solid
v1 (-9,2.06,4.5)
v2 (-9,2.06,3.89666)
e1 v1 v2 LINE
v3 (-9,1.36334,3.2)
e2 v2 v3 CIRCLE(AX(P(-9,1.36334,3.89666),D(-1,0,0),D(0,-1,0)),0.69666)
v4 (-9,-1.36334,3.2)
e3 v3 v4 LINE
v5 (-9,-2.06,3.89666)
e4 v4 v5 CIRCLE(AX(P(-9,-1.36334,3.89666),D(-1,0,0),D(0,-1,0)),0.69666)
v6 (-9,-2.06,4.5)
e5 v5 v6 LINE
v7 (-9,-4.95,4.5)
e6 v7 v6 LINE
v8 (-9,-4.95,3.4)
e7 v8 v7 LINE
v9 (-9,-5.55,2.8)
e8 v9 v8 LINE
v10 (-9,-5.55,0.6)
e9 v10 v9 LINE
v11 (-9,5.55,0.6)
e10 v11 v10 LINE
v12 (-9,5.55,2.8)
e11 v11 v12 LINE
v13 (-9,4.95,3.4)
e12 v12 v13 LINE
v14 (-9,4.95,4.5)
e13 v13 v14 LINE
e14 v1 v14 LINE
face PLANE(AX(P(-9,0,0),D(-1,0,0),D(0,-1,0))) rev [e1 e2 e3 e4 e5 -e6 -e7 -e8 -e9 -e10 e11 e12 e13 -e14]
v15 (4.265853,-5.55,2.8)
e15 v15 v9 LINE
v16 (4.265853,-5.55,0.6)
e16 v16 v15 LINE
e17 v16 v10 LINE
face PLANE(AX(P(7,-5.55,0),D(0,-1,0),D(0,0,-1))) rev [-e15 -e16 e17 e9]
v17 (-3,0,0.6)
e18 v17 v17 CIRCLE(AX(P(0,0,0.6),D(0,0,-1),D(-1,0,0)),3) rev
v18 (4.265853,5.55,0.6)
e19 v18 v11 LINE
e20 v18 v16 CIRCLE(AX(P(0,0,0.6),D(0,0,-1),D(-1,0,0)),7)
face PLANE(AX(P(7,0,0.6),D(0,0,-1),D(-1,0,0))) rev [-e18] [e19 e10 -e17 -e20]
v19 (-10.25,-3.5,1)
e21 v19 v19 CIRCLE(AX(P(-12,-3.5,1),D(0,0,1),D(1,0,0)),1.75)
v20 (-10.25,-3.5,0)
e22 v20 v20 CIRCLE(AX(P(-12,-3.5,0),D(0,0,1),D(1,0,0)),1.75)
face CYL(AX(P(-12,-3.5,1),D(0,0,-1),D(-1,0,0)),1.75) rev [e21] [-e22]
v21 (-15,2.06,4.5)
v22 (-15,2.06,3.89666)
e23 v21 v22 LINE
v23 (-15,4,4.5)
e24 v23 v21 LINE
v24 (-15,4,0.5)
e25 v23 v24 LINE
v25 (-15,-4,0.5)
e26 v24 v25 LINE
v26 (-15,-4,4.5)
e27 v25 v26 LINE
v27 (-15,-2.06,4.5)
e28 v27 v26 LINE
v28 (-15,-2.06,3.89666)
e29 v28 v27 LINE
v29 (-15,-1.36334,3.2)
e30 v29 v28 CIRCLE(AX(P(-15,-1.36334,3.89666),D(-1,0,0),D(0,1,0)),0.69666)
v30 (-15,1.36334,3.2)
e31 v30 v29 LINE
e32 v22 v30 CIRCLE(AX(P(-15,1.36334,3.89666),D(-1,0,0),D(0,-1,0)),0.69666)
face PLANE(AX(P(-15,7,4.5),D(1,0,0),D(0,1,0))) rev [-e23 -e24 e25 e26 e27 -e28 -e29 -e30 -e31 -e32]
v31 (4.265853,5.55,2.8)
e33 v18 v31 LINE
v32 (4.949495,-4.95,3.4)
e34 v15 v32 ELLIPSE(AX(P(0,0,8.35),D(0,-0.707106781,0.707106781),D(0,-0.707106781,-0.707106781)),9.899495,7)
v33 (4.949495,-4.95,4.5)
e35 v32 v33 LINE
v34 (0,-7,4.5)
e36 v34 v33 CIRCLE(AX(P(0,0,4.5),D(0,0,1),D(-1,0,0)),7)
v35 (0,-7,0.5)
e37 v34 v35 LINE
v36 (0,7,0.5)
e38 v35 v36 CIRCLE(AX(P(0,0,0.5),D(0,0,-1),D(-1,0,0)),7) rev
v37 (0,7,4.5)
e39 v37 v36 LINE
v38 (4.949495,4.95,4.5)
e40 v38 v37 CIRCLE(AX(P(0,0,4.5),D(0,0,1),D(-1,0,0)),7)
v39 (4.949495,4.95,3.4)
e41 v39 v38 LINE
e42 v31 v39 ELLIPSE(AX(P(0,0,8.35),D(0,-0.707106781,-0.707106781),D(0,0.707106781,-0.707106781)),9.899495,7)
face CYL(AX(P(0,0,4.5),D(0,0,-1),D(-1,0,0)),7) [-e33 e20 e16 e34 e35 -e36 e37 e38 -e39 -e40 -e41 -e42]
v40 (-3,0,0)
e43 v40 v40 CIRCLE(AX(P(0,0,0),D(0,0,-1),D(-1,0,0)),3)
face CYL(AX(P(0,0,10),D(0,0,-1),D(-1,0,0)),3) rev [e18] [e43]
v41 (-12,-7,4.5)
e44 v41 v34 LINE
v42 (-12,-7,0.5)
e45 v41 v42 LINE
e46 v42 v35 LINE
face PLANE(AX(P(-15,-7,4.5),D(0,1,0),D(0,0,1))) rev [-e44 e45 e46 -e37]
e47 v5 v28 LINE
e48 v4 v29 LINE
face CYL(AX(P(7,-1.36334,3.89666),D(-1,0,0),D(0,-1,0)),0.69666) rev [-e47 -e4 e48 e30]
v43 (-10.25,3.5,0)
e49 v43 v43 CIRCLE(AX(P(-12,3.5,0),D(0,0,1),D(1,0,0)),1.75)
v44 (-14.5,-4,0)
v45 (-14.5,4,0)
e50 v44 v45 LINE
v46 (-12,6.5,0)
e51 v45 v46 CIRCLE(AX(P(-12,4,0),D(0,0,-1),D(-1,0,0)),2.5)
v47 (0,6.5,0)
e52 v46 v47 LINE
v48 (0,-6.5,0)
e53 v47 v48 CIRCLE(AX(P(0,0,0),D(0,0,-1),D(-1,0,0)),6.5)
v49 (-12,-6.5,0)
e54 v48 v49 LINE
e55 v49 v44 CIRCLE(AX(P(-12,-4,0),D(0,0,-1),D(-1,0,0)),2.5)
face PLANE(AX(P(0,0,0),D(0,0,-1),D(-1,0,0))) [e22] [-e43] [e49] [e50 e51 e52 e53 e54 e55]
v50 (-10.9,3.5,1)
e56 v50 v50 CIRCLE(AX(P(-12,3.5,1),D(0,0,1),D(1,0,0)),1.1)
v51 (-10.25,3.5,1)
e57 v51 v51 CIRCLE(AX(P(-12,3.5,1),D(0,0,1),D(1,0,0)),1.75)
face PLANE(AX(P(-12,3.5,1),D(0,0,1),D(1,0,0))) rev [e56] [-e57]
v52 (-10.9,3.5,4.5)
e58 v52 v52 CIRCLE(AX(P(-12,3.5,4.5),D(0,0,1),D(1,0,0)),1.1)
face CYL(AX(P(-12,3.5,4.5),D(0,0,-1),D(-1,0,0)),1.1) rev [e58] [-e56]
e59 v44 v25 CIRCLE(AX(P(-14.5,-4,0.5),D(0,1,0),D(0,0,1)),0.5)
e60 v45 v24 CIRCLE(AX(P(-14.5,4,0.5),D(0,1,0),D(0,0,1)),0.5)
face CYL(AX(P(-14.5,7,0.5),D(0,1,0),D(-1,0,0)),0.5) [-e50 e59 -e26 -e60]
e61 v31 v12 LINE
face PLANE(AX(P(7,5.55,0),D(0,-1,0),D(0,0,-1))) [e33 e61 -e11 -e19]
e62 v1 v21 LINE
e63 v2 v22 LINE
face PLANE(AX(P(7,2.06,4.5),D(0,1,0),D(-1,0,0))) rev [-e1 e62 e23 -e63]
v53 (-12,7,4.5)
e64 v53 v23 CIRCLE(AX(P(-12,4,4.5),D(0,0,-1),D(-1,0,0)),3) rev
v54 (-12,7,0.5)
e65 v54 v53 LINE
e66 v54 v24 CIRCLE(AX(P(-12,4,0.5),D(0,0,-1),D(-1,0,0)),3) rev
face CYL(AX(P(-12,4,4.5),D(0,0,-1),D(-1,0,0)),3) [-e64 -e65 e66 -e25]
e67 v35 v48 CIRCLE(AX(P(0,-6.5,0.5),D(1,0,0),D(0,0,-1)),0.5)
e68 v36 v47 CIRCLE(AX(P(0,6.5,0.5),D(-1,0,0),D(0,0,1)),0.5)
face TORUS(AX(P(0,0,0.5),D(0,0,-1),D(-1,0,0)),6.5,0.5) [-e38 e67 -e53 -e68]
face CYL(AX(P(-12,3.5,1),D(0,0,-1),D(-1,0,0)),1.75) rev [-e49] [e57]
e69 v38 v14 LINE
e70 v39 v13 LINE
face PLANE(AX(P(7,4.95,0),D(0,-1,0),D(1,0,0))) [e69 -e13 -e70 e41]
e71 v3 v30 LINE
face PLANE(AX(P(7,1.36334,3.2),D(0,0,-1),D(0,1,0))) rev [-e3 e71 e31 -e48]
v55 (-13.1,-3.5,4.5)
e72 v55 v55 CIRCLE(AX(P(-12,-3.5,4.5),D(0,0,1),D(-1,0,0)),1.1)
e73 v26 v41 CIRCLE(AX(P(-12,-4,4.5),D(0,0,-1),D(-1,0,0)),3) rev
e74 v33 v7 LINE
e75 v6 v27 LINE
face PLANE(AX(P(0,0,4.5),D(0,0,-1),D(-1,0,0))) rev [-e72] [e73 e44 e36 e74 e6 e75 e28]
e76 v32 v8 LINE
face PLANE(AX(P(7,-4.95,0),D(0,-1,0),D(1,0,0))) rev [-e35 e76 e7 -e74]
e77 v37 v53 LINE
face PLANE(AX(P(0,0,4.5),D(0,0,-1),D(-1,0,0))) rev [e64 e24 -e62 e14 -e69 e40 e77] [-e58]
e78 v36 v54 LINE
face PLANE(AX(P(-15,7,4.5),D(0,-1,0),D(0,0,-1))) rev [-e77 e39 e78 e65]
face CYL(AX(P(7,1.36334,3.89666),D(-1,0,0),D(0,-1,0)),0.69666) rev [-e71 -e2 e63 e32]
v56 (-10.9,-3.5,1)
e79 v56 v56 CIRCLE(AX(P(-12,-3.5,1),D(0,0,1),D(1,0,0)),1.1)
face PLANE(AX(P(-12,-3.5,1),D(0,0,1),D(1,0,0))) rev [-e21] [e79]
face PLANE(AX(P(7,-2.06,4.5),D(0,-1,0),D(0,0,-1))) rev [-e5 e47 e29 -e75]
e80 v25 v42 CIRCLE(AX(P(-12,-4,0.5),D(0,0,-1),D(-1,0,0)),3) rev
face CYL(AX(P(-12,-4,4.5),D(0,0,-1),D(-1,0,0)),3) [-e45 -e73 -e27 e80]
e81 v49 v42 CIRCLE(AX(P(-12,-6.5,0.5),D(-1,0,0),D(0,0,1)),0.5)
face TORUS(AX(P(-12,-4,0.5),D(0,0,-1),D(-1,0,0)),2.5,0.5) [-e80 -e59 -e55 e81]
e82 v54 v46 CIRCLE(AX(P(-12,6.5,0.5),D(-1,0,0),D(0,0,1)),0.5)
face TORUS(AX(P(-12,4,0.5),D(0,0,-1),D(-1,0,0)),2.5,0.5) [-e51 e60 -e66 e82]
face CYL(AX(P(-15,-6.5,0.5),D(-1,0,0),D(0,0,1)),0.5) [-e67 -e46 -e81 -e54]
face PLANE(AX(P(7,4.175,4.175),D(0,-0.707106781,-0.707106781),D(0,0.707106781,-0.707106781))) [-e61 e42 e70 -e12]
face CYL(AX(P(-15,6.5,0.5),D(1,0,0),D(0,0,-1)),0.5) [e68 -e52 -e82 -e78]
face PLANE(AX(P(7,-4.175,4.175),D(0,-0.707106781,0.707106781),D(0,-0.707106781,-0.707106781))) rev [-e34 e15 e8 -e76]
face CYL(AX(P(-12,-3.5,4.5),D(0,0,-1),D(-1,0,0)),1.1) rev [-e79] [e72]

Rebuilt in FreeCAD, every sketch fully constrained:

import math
import FreeCAD as App
import Part
import Sketcher

V = App.Vector


def edges_at(feature, points):
    """Names of the edges that pass closest to the given points."""
    edges = feature.Shape.Edges
    near = lambda p: min(range(len(edges)), key=lambda i: edges[i].distToShape(Part.Vertex(*p))[0])
    return sorted({f"Edge{near(p) + 1}" for p in points})


def add_polygon(sketch, points):
    """Adds a closed chain of lines whose ends are joined by coincident constraints."""
    first, n = sketch.GeometryCount, len(points)
    for a, b in zip(points, points[1:] + points[:1]):
        sketch.addGeometry(Part.LineSegment(App.Vector(*a, 0), App.Vector(*b, 0)), False)
    for i in range(n):
        sketch.addConstraint(Sketcher.Constraint("Coincident", first + i, 2, first + (i + 1) % n, 1))

doc = App.newDocument("Part")
body = doc.addObject("PartDesign::Body", "Body")

# Sketch on XY plane
sketch1 = body.newObject("Sketcher::SketchObject", "Sketch")
sketch1.AttachmentSupport = (doc.getObject("XY_Plane"), [""])
sketch1.MapMode = "FlatFace"
sketch1.addGeometry(Part.LineSegment(V(0, 7, 0), V(-15, 7, 0)), False)
sketch1.addGeometry(Part.LineSegment(V(-15, 7, 0), V(-15, -7, 0)), False)
sketch1.addGeometry(Part.LineSegment(V(-15, -7, 0), V(0, -7, 0)), False)
sketch1.addGeometry(Part.ArcOfCircle(Part.Circle(V(0, 0, 0), V(0, 0, 1), 7), math.radians(-90), math.radians(90)), False)
sketch1.addGeometry(Part.Circle(V(-12, -3.5, 0), V(0, 0, 1), 1.1), False)
sketch1.addGeometry(Part.Circle(V(-12, 3.5, 0), V(0, 0, 1), 1.1), False)
sketch1.addConstraint(Sketcher.Constraint("Coincident", 0, 2, 1, 1))
sketch1.addConstraint(Sketcher.Constraint("Coincident", 1, 2, 2, 1))
sketch1.addConstraint(Sketcher.Constraint("Tangent", 2, 2, 3, 1))
sketch1.addConstraint(Sketcher.Constraint("Tangent", 3, 2, 0, 1))
sketch1.addConstraint(Sketcher.Constraint("Horizontal", 0))
sketch1.addConstraint(Sketcher.Constraint("Vertical", 1))
sketch1.addConstraint(Sketcher.Constraint("Horizontal", 2))
sketch1.addConstraint(Sketcher.Constraint("Coincident", 3, 3, -1, 1))
sketch1.addConstraint(Sketcher.Constraint("Equal", 4, 5))
sketch1.addConstraint(Sketcher.Constraint("Symmetric", 4, 3, 5, 3, -1))
sketch1.addConstraint(Sketcher.Constraint("Radius", 3, 7.0))
sketch1.addConstraint(Sketcher.Constraint("Diameter", 4, 2.2))
sketch1.addConstraint(Sketcher.Constraint("DistanceX", 0, 2, 0, 1, 15.0))
sketch1.addConstraint(Sketcher.Constraint("DistanceX", 4, 3, -1, 1, 12.0))
sketch1.addConstraint(Sketcher.Constraint("DistanceY", 4, 3, 5, 3, 7.0))
pad1 = body.newObject("PartDesign::Pad", "Pad")
pad1.Profile = sketch1
pad1.Length = 4.5

# Sketch on XY plane
sketch2 = body.newObject("Sketcher::SketchObject", "Sketch001")
sketch2.AttachmentSupport = (doc.getObject("XY_Plane"), [""])
sketch2.MapMode = "FlatFace"
sketch2.addGeometry(Part.Circle(V(0, 0, 0), V(0, 0, 1), 3), False)
sketch2.addConstraint(Sketcher.Constraint("Coincident", 0, 3, -1, 1))
sketch2.addConstraint(Sketcher.Constraint("Diameter", 0, 6.0))
pocket1 = body.newObject("PartDesign::Pocket", "Pocket")
pocket1.Profile = sketch2
pocket1.Length = 10
pocket1.Reversed = True

# Sketch on YZ plane
sketch3 = body.newObject("Sketcher::SketchObject", "Sketch002")
sketch3.AttachmentSupport = (doc.getObject("YZ_Plane"), [""])
sketch3.MapMode = "FlatFace"
sketch3.AttachmentOffset = App.Placement(V(0, 0, -9), App.Rotation())
add_polygon(sketch3, [(5.5, 2.8), (5.5, 0.6), (-5.5, 0.6), (-5.5, 2.8), (-5, 3.4), (-5, 4.5), (5, 4.5), (5, 3.4)])  # lines 0-7
sketch3.addConstraint(Sketcher.Constraint("Vertical", 0))
sketch3.addConstraint(Sketcher.Constraint("Horizontal", 1))
sketch3.addConstraint(Sketcher.Constraint("Vertical", 2))
sketch3.addConstraint(Sketcher.Constraint("Vertical", 4))
sketch3.addConstraint(Sketcher.Constraint("Horizontal", 5))
sketch3.addConstraint(Sketcher.Constraint("Vertical", 6))
sketch3.addConstraint(Sketcher.Constraint("Symmetric", 3, 2, 6, 2, -2))
sketch3.addConstraint(Sketcher.Constraint("Symmetric", 2, 2, 7, 2, -2))
sketch3.addConstraint(Sketcher.Constraint("Perpendicular", 3, 7))
sketch3.addConstraint(Sketcher.Constraint("DistanceX", 1, 2, 1, 1, 11.1))
sketch3.addConstraint(Sketcher.Constraint("DistanceX", 5, 1, 5, 2, 9.9))
sketch3.addConstraint(Sketcher.Constraint("DistanceY", 0, 2, 0, 1, 2.2))
sketch3.addConstraint(Sketcher.Constraint("DistanceY", 4, 1, 4, 2, 1.1))
sketch3.addConstraint(Sketcher.Constraint("DistanceY", -1, 1, 0, 2, 0.6))
pocket2 = body.newObject("PartDesign::Pocket", "Pocket001")
pocket2.Profile = sketch3
pocket2.Type = "ThroughAll"
pocket2.Reversed = True

# Sketch on YZ plane
sketch4 = body.newObject("Sketcher::SketchObject", "Sketch003")
sketch4.AttachmentSupport = (doc.getObject("YZ_Plane"), [""])
sketch4.MapMode = "FlatFace"
sketch4.AttachmentOffset = App.Placement(V(0, 0, -15), App.Rotation())
sketch4.addGeometry(Part.LineSegment(V(1.4, 3.2, 0), V(-1.4, 3.2, 0)), False)
sketch4.addGeometry(Part.ArcOfCircle(Part.Circle(V(-1.4, 3.9, 0), V(0, 0, 1), 0.7), math.radians(180), math.radians(270)), False)
sketch4.addGeometry(Part.LineSegment(V(-2.1, 3.9, 0), V(-2.1, 4.5, 0)), False)
sketch4.addGeometry(Part.LineSegment(V(-2.1, 4.5, 0), V(2.1, 4.5, 0)), False)
sketch4.addGeometry(Part.LineSegment(V(2.1, 4.5, 0), V(2.1, 3.9, 0)), False)
sketch4.addGeometry(Part.ArcOfCircle(Part.Circle(V(1.4, 3.9, 0), V(0, 0, 1), 0.7), math.radians(-90), math.radians(0)), False)
sketch4.addConstraint(Sketcher.Constraint("Tangent", 0, 2, 1, 2))
sketch4.addConstraint(Sketcher.Constraint("Tangent", 1, 1, 2, 1))
sketch4.addConstraint(Sketcher.Constraint("Coincident", 2, 2, 3, 1))
sketch4.addConstraint(Sketcher.Constraint("Coincident", 3, 2, 4, 1))
sketch4.addConstraint(Sketcher.Constraint("Tangent", 4, 2, 5, 2))
sketch4.addConstraint(Sketcher.Constraint("Tangent", 5, 1, 0, 1))
sketch4.addConstraint(Sketcher.Constraint("Horizontal", 0))
sketch4.addConstraint(Sketcher.Constraint("Vertical", 2))
sketch4.addConstraint(Sketcher.Constraint("Horizontal", 3))
sketch4.addConstraint(Sketcher.Constraint("Vertical", 4))
sketch4.addConstraint(Sketcher.Constraint("Equal", 1, 5))
sketch4.addConstraint(Sketcher.Constraint("DistanceX", 3, 1, 3, 2, 4.12))
sketch4.addConstraint(Sketcher.Constraint("DistanceY", -1, 1, 0, 2, 3.2))
sketch4.addConstraint(Sketcher.Constraint("DistanceY", -1, 1, 2, 2, 4.5))
sketch4.addConstraint(Sketcher.Constraint("DistanceX", 1, 1, -1, 1, 2.06))
sketch4.addConstraint(Sketcher.Constraint("Radius", 1, 0.69666))
pocket3 = body.newObject("PartDesign::Pocket", "Pocket002")
pocket3.Profile = sketch4
pocket3.Type = "ThroughAll"
pocket3.Reversed = True
doc.recompute()

fillet = body.newObject("PartDesign::Fillet", "Fillet")
fillet.Base = (pocket3, edges_at(pocket3, [(-15, -7, 2.25), (-15, 7, 2.25)]))
fillet.Radius = 3
doc.recompute()

fillet2 = body.newObject("PartDesign::Fillet", "Fillet001")
fillet2.Base = (fillet, edges_at(fillet, [
    (-6, 7, 0),
    (7, 0, 0),
    (-15, 0, 0),
    (-6, -7, 0),
    (-14.121, -6.121, 0),
    (-14.121, 6.121, 0),
]))
fillet2.Radius = 0.5

# Sketch on XY plane
sketch5 = body.newObject("Sketcher::SketchObject", "Sketch004")
sketch5.AttachmentSupport = (doc.getObject("XY_Plane"), [""])
sketch5.MapMode = "FlatFace"
sketch5.addGeometry(Part.Circle(V(-12, 3.5, 0), V(0, 0, 1), 1.8), False)
sketch5.addGeometry(Part.Circle(V(-12, -3.5, 0), V(0, 0, 1), 1.8), False)
sketch5.addConstraint(Sketcher.Constraint("Equal", 0, 1))
sketch5.addConstraint(Sketcher.Constraint("Symmetric", 0, 3, 1, 3, -1))
sketch5.addConstraint(Sketcher.Constraint("Diameter", 0, 3.5))
sketch5.addConstraint(Sketcher.Constraint("DistanceX", 0, 3, -1, 1, 12.0))
sketch5.addConstraint(Sketcher.Constraint("DistanceY", 1, 3, 0, 3, 7.0))
pocket4 = body.newObject("PartDesign::Pocket", "Pocket003")
pocket4.Profile = sketch5
pocket4.Length = 1
pocket4.Reversed = True

doc.recompute()
